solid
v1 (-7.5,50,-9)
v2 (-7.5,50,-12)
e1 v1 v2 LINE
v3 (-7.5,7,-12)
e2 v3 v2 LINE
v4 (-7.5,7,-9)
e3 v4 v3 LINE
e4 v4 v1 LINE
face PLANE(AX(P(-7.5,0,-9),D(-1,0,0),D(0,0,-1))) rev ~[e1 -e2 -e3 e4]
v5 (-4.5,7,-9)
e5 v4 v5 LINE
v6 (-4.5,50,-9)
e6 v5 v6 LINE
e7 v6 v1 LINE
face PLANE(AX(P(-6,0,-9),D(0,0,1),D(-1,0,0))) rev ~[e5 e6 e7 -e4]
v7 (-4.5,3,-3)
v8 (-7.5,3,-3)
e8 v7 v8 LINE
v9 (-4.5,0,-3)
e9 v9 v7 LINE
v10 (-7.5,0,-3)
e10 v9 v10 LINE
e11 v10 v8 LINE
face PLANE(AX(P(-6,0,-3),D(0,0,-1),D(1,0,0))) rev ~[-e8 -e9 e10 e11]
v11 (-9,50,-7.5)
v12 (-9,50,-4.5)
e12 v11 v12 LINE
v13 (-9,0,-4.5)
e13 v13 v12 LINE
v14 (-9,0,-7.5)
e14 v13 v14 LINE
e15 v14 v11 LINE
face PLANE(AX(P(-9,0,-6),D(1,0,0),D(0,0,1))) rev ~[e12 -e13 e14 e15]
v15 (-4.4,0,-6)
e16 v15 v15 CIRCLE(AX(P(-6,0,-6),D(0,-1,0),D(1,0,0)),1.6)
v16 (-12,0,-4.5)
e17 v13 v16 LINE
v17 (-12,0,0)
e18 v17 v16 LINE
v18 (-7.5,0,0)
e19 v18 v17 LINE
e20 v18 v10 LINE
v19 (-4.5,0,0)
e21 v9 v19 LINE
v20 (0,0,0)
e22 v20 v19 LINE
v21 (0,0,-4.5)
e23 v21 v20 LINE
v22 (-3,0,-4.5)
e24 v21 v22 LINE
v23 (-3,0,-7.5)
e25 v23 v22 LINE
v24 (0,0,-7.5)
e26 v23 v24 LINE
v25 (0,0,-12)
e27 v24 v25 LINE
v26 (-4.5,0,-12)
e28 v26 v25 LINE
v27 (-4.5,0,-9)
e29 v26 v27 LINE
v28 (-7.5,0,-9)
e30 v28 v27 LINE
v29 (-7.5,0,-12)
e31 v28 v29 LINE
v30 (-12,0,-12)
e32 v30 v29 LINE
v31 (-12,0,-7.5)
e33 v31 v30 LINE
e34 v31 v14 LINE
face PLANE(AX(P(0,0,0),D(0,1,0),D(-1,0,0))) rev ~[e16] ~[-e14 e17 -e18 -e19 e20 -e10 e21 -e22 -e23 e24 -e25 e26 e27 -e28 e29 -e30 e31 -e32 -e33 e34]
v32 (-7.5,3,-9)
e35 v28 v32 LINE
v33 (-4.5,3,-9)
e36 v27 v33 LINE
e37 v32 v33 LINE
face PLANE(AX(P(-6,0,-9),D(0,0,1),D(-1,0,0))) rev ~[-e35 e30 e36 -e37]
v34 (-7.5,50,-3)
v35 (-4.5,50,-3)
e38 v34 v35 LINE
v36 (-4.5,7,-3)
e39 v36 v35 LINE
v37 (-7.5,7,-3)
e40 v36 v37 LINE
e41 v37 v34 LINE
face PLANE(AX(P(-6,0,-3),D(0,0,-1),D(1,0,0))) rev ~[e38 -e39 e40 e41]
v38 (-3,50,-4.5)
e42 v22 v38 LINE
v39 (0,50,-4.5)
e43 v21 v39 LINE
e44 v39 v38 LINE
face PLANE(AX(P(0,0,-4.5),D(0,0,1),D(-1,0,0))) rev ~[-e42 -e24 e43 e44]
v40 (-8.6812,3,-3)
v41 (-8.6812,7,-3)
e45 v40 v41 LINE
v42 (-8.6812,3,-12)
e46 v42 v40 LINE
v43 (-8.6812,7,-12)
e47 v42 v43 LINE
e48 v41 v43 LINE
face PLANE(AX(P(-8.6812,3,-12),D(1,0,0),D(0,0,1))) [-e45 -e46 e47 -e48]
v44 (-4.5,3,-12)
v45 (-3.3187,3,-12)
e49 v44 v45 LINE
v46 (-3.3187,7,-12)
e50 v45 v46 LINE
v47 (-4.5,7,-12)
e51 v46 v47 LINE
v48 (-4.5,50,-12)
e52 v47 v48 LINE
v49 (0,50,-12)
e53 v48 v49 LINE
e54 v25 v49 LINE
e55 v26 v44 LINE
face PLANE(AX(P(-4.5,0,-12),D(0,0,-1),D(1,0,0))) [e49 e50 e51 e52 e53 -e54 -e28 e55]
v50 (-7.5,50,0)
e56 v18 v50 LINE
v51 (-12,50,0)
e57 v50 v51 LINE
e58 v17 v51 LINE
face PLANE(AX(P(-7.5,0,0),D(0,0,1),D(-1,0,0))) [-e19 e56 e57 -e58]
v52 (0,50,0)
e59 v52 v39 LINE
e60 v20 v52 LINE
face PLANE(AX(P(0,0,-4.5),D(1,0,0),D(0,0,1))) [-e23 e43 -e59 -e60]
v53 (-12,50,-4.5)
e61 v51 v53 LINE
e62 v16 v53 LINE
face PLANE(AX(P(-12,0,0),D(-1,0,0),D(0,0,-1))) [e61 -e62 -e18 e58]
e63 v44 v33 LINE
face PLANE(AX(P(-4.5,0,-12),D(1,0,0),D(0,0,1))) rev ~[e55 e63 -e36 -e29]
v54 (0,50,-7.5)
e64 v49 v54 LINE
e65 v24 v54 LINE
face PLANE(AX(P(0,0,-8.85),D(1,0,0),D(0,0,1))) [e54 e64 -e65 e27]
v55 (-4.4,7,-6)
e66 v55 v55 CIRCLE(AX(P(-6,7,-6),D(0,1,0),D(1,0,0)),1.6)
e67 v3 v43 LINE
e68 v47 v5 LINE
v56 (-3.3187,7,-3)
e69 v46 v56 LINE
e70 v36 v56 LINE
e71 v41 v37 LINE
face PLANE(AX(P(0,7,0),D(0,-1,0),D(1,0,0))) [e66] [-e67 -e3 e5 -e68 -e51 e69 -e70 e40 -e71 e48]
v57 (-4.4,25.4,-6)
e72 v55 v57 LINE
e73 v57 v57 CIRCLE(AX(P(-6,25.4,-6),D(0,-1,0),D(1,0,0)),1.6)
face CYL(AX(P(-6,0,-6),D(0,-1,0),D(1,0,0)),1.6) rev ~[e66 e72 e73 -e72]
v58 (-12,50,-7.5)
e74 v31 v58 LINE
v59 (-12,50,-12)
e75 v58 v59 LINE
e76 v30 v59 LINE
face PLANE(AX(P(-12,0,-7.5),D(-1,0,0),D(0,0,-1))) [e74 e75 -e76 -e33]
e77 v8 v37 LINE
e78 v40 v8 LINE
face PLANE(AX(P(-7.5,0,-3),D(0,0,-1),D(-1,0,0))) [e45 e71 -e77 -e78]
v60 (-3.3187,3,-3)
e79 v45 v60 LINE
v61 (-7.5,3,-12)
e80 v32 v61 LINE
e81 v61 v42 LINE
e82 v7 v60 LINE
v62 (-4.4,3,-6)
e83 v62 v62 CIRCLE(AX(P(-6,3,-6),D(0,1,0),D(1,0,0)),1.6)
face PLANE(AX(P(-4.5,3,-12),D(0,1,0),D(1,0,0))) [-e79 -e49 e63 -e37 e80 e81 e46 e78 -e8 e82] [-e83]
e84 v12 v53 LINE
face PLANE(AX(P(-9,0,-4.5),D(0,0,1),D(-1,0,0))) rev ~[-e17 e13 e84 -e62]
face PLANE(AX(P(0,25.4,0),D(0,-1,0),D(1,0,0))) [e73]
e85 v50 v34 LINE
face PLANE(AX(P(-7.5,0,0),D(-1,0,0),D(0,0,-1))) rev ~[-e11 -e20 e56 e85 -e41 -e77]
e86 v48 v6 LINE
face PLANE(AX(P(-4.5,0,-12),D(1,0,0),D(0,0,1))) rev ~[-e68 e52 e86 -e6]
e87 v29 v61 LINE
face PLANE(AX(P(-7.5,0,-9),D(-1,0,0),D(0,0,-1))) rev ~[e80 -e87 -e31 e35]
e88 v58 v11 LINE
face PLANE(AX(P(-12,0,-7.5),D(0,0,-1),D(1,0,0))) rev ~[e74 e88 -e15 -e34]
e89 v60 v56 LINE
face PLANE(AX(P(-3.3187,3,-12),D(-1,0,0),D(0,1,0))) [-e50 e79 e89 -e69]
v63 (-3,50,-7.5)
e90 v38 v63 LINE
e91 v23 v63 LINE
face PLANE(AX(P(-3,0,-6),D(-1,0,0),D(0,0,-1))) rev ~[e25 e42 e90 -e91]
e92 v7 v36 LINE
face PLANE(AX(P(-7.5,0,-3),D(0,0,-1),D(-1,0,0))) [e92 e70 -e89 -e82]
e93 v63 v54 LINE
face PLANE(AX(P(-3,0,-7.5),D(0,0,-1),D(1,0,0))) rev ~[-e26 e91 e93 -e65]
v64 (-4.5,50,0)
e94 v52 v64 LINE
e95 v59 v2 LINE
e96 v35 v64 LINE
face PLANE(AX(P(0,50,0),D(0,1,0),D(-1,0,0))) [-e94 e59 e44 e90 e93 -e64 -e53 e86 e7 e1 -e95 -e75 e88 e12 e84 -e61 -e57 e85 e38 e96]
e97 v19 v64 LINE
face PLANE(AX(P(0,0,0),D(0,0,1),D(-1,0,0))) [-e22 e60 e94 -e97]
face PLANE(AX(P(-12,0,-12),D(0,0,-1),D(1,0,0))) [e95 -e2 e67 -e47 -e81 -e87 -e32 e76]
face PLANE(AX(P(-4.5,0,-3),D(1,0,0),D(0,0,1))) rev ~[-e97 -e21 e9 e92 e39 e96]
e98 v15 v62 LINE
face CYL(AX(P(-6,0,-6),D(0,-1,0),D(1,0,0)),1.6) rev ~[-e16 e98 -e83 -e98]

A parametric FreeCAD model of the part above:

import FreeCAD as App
import Part
import Sketcher

V = App.Vector
Q = App.Units.Quantity


def add_polygon(sketch, points):
    """Adds a closed chain of lines whose ends are joined by coincident constraints."""
    first, n = sketch.GeometryCount, len(points)
    for a, b in zip(points, points[1:] + points[:1]):
        sketch.addGeometry(Part.LineSegment(App.Vector(*a, 0), App.Vector(*b, 0)), False)
    for i in range(n):
        sketch.addConstraint(Sketcher.Constraint("Coincident", first + i, 2, first + (i + 1) % n, 1))

doc = App.newDocument("Part")
body = doc.addObject("PartDesign::Body", "Body")

# Sketch on XZ plane
sketch1 = body.newObject("Sketcher::SketchObject", "Sketch")
sketch1.AttachmentSupport = (doc.getObject("XZ_Plane"), [""])
sketch1.MapMode = "FlatFace"
add_polygon(sketch1, [(0, -7.5), (0, -12), (-4.5, -12), (-4.5, -9), (-7.5, -9), (-7.5, -12), (-12, -12), (-12, -7.5), (-9, -7.5), (-9, -4.5), (-12, -4.5), (-12, 0), (-7.5, 0), (-7.5, -3), (-4.5, -3), (-4.5, 0), (0, 0), (0, -4.5), (-3, -4.5), (-3, -7.5)])  # lines 0-19
sketch1.addConstraint([
    Sketcher.Constraint("Vertical", 0),
    Sketcher.Constraint("Horizontal", 1),
    Sketcher.Constraint("Vertical", 2),
    Sketcher.Constraint("Horizontal", 3),
    Sketcher.Constraint("Vertical", 4),
    Sketcher.Constraint("Horizontal", 5),
    Sketcher.Constraint("Vertical", 6),
    Sketcher.Constraint("Horizontal", 7),
    Sketcher.Constraint("Vertical", 8),
    Sketcher.Constraint("Horizontal", 9),
    Sketcher.Constraint("Vertical", 10),
    Sketcher.Constraint("Horizontal", 11),
    Sketcher.Constraint("Vertical", 12),
    Sketcher.Constraint("Horizontal", 13),
    Sketcher.Constraint("Vertical", 14),
    Sketcher.Constraint("Horizontal", 15),
    Sketcher.Constraint("Vertical", 16),
    Sketcher.Constraint("Horizontal", 17),
    Sketcher.Constraint("Vertical", 18),
    Sketcher.Constraint("Horizontal", 19),
    Sketcher.Constraint("Coincident", 15, 2, -1, 1),
    Sketcher.Constraint("PointOnObject", 0, 2, -2),
    Sketcher.Constraint("PointOnObject", 10, 2, -1),
    Sketcher.Constraint("Horizontal", 1, 2, 4, 2),
    Sketcher.Constraint("Horizontal", 9, 2, 16, 2),
    Sketcher.Constraint("Horizontal", 7, 2, 18, 2),
    Sketcher.Constraint("Vertical", 6, 2, 9, 2),
    Sketcher.Constraint("Vertical", 4, 2, 11, 2),
    Sketcher.Constraint("Vertical", 2, 2, 13, 2),
    Sketcher.Constraint("Equal", 1, 5),
    Sketcher.Constraint("Equal", 3, 7),
    Sketcher.Constraint("Equal", 13, 17),
    Sketcher.Constraint("Equal", 15, 0),
    Sketcher.Constraint("Equal", 19, 2),
    Sketcher.Constraint("Equal", 4, 8),
    Sketcher.Constraint("Equal", 6, 10),
    Sketcher.Constraint("Equal", 8, 12),
    Sketcher.Constraint("DistanceY", 0, 2, -1, 1, 12.0),
    Sketcher.Constraint("DistanceX", 3, 2, 3, 1, 3.0),
])
pad1 = body.newObject("PartDesign::Pad", "Pad")
pad1.Profile = sketch1
pad1.Length = 50
pad1.Reversed = True

# Sketch on XZ plane
sketch2 = body.newObject("Sketcher::SketchObject", "Sketch001")
sketch2.AttachmentSupport = (doc.getObject("XZ_Plane"), [""])
sketch2.MapMode = "FlatFace"
sketch2.AttachmentOffset = App.Placement(V(0, 0, -3), App.Rotation())
add_polygon(sketch2, [(-7.34, -3.68), (-8.68, -4.45), (-8.68, -12), (-7.5, -12), (-7.5, -9), (-4.5, -9), (-4.5, -12), (-3.32, -12), (-3.32, -6), (-3.32, -4.45), (-4.66, -3.68), (-5.83, -3), (-6.17, -3)])  # lines 0-12
sketch2.addConstraint([
    Sketcher.Constraint("Vertical", 1),
    Sketcher.Constraint("Horizontal", 2),
    Sketcher.Constraint("Vertical", 3),
    Sketcher.Constraint("Horizontal", 4),
    Sketcher.Constraint("Vertical", 5),
    Sketcher.Constraint("Horizontal", 6),
    Sketcher.Constraint("Vertical", 7),
    Sketcher.Constraint("Vertical", 8),
    Sketcher.Constraint("Horizontal", 11),
    Sketcher.Constraint("Parallel", 9, 10),
    Sketcher.Constraint("Parallel", 0, 12),
    Sketcher.Constraint("Horizontal", 2, 2, 5, 2),
    Sketcher.Constraint("Horizontal", 0, 2, 8, 2),
    Sketcher.Constraint("Horizontal", 9, 2, 12, 2),
    Sketcher.Constraint("Equal", 2, 6),
    Sketcher.Constraint("Equal", 4, 3),
    Sketcher.Constraint("Equal", 0, 9),
    Sketcher.Constraint("DistanceX", 4, 1, 4, 2, 3.0),
    Sketcher.Constraint("DistanceY", 7, 1, 7, 2, 6.0),
    Sketcher.Constraint("Angle", 0, Q("-149.9999 deg")),
    Sketcher.Constraint("DistanceY", 1, 2, -1, 1, 12.0),
    Sketcher.Constraint("DistanceY", 10, 2, -1, 1, 3.0),
    Sketcher.Constraint("DistanceX", 2, 2, -1, 1, 7.5),
    Sketcher.Constraint("DistanceY", 1, 2, 1, 1, 7.548),
    Sketcher.Constraint("Distance", 0, 1.548),
    Sketcher.Constraint("DistanceX", 2, 1, 2, 2, 1.1812),
])
pocket1 = body.newObject("PartDesign::Pocket", "Pocket")
pocket1.Profile = sketch2
pocket1.Length = 4

# Sketch on XZ plane
sketch3 = body.newObject("Sketcher::SketchObject", "Sketch002")
sketch3.AttachmentSupport = (doc.getObject("XZ_Plane"), [""])
sketch3.MapMode = "FlatFace"
sketch3.addGeometry(Part.Circle(V(-6, -6, 0), V(0, 0, 1), 1.6), False)
sketch3.addConstraint([
    Sketcher.Constraint("Diameter", 0, 3.2),
    Sketcher.Constraint("DistanceX", 0, 3, -1, 1, 6.0),
    Sketcher.Constraint("DistanceY", 0, 3, -1, 1, 6.0),
])
pocket2 = body.newObject("PartDesign::Pocket", "Pocket001")
pocket2.Profile = sketch3
pocket2.Length = 25.4

# Sketch on XY plane
sketch4 = body.newObject("Sketcher::SketchObject", "Sketch003")
sketch4.AttachmentSupport = (doc.getObject("XY_Plane"), [""])
sketch4.MapMode = "FlatFace"
sketch4.AttachmentOffset = App.Placement(V(0, 0, -12), App.Rotation())
add_polygon(sketch4, [(-8.7, 7), (-3.3, 7), (-3.3, 3), (-8.7, 3)])  # lines 0-3
sketch4.addConstraint([
    Sketcher.Constraint("Horizontal", 0),
    Sketcher.Constraint("Vertical", 1),
    Sketcher.Constraint("Horizontal", 2),
    Sketcher.Constraint("Vertical", 3),
    Sketcher.Constraint("DistanceY", 1, 2, 1, 1, 4.0),
    Sketcher.Constraint("DistanceY", -1, 1, 0, 2, 7.0),
    Sketcher.Constraint("DistanceX", 0, 1, 0, 2, 5.3625),
    Sketcher.Constraint("DistanceX", 0, 2, -1, 1, 3.3187),
])
pocket3 = body.newObject("PartDesign::Pocket", "Pocket002")
pocket3.Profile = sketch4
pocket3.Length = 9
pocket3.Reversed = True

doc.recompute()
